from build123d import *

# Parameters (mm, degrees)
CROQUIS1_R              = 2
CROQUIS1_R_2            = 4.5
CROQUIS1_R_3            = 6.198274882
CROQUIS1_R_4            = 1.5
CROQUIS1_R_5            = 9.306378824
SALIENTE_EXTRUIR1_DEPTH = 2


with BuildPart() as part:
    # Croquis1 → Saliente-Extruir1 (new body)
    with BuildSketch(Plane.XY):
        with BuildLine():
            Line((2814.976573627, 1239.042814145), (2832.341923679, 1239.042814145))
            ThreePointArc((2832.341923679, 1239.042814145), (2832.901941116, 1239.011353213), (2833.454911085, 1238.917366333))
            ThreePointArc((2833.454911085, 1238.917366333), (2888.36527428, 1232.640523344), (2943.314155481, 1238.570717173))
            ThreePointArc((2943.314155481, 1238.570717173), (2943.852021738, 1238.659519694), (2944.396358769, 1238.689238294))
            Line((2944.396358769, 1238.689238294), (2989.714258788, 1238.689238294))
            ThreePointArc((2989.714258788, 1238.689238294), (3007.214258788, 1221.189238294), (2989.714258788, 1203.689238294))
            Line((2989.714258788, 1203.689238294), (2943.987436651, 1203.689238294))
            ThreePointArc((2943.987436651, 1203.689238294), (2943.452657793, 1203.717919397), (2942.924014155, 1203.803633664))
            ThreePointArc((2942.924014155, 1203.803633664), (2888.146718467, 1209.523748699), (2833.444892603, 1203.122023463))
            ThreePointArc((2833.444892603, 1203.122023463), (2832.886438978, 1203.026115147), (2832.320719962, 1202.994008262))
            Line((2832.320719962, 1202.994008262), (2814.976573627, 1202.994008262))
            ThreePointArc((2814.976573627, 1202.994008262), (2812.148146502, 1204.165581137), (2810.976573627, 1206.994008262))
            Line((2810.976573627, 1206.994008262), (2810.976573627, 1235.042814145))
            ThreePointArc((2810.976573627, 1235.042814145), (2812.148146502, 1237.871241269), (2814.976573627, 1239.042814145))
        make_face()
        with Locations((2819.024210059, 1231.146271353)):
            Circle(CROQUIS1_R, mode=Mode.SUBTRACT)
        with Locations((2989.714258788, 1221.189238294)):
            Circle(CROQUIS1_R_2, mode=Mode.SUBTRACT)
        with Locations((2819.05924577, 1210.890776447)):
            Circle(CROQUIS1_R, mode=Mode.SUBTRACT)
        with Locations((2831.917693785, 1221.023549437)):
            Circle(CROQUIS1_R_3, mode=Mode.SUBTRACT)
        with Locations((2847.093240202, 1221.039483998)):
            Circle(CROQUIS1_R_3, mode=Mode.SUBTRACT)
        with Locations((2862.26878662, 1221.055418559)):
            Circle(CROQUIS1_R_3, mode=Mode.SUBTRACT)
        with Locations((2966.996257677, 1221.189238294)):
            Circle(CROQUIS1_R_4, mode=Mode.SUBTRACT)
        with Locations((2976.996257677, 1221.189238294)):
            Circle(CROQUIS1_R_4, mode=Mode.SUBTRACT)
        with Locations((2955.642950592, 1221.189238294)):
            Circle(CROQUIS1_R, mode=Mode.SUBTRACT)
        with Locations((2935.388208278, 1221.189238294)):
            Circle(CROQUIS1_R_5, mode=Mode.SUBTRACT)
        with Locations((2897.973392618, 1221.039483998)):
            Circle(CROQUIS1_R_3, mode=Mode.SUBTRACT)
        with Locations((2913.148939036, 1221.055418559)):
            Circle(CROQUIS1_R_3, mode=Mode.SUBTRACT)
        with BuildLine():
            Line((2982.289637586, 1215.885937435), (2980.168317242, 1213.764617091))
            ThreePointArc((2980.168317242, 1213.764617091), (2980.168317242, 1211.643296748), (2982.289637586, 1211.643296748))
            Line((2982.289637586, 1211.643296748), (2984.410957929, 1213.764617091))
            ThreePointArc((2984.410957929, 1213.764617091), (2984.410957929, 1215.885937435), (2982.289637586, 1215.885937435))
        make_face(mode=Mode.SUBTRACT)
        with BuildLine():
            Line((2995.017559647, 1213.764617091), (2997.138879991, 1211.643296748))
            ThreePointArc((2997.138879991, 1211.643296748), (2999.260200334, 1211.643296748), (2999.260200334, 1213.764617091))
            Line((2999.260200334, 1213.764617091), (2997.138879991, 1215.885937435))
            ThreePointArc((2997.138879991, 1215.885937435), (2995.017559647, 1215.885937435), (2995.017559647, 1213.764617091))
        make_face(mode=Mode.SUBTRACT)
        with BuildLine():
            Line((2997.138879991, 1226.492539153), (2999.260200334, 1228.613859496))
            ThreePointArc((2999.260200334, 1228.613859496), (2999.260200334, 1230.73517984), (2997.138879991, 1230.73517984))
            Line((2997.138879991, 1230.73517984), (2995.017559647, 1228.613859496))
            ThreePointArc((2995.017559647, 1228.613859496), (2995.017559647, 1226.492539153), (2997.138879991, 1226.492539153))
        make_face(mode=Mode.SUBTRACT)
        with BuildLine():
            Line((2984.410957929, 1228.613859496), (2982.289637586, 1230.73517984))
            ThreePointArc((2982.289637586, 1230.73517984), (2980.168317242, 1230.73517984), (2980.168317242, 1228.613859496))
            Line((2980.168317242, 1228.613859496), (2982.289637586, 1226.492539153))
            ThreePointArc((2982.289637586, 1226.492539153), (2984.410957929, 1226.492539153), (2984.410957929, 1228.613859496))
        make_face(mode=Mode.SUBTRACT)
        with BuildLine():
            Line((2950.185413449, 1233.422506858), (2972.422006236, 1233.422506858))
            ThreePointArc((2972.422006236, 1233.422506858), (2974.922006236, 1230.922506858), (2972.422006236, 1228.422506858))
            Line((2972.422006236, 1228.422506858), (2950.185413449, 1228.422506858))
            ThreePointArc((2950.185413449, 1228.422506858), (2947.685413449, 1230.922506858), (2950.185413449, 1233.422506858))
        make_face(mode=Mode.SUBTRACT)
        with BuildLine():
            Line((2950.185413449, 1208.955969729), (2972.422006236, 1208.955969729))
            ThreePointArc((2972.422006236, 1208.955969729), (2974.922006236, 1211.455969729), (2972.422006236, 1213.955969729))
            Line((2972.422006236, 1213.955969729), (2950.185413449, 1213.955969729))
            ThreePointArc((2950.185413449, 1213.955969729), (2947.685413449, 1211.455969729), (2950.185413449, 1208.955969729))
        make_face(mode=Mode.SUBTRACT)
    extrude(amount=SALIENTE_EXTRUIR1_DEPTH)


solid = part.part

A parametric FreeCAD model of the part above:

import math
import FreeCAD as App
import Part
import Sketcher

V = App.Vector
Q = App.Units.Quantity

doc = App.newDocument("Part")
body = doc.addObject("PartDesign::Body", "Body")

# Sketch on XY plane
sketch1 = body.newObject("Sketcher::SketchObject", "Sketch")
sketch1.AttachmentSupport = (doc.getObject("XY_Plane"), [""])
sketch1.MapMode = "FlatFace"
sketch1.addGeometry(Part.LineSegment(V(2832.3, 1239, 0), V(2815, 1239, 0)), False)
sketch1.addGeometry(Part.ArcOfCircle(Part.Circle(V(2815, 1235, 0), V(0, 0, 1), 4), math.radians(90), math.radians(180)), False)
sketch1.addGeometry(Part.LineSegment(V(2811, 1235, 0), V(2811, 1207, 0)), False)
sketch1.addGeometry(Part.ArcOfCircle(Part.Circle(V(2815, 1207, 0), V(0, 0, 1), 4), math.radians(180), math.radians(270)), False)
sketch1.addGeometry(Part.LineSegment(V(2815, 1203, 0), V(2832.3, 1203, 0)), False)
sketch1.addGeometry(Part.ArcOfCircle(Part.Circle(V(2832.3, 1208, 0), V(0, 0, 1), 5), math.radians(-90), math.radians(-77.01)), False)
sketch1.addGeometry(Part.ArcOfCircle(Part.Circle(V(2889.7, 959.3, 0), V(0, 0, 1), 250.2), math.radians(78), math.radians(103)), False)
sketch1.addGeometry(Part.ArcOfCircle(Part.Circle(V(2944, 1208.7, 0), V(0, 0, 1), 5), math.radians(-102.28), math.radians(-90)), False)
sketch1.addGeometry(Part.LineSegment(V(2944, 1203.7, 0), V(2989.7, 1203.7, 0)), False)
sketch1.addGeometry(Part.ArcOfCircle(Part.Circle(V(2989.7, 1221.2, 0), V(0, 0, 1), 17.5), math.radians(-90), math.radians(90)), False)
sketch1.addGeometry(Part.LineSegment(V(2989.7, 1238.7, 0), V(2944.4, 1238.7, 0)), False)
sketch1.addGeometry(Part.ArcOfCircle(Part.Circle(V(2944.4, 1233.7, 0), V(0, 0, 1), 5), math.radians(90), math.radians(102.5)), False)
sketch1.addGeometry(Part.ArcOfCircle(Part.Circle(V(2889.2, 1482.9, 0), V(0, 0, 1), 250.2), math.radians(-103), math.radians(-77)), False)
sketch1.addGeometry(Part.ArcOfCircle(Part.Circle(V(2832.3, 1234, 0), V(0, 0, 1), 5), math.radians(77.14), math.radians(90)), False)
sketch1.addGeometry(Part.ArcOfCircle(Part.Circle(V(2950.2, 1211.5, 0), V(0, 0, 1), 2.5), math.radians(90), math.radians(270)), False)
sketch1.addGeometry(Part.LineSegment(V(2950.2, 1214, 0), V(2972.4, 1214, 0)), False)
sketch1.addGeometry(Part.ArcOfCircle(Part.Circle(V(2972.4, 1211.5, 0), V(0, 0, 1), 2.5), math.radians(-90), math.radians(90)), False)
sketch1.addGeometry(Part.LineSegment(V(2972.4, 1209, 0), V(2950.2, 1209, 0)), False)
sketch1.addGeometry(Part.ArcOfCircle(Part.Circle(V(2996.1, 1214.8, 0), V(0, 0, 1), 1.5), math.radians(45), math.radians(225)), False)
sketch1.addGeometry(Part.LineSegment(V(2997.1, 1215.9, 0), V(2999.3, 1213.8, 0)), False)
sketch1.addGeometry(Part.ArcOfCircle(Part.Circle(V(2998.2, 1212.7, 0), V(0, 0, 1), 1.5), math.radians(-135), math.radians(45)), False)
sketch1.addGeometry(Part.LineSegment(V(2997.1, 1211.6, 0), V(2995, 1213.8, 0)), False)
sketch1.addGeometry(Part.ArcOfCircle(Part.Circle(V(2983.4, 1214.8, 0), V(0, 0, 1), 1.5), math.radians(-45), math.radians(135)), False)
sketch1.addGeometry(Part.LineSegment(V(2984.4, 1213.8, 0), V(2982.3, 1211.6, 0)), False)
sketch1.addGeometry(Part.ArcOfCircle(Part.Circle(V(2981.2, 1212.7, 0), V(0, 0, 1), 1.5), math.radians(135), math.radians(315)), False)
sketch1.addGeometry(Part.LineSegment(V(2980.2, 1213.8, 0), V(2982.3, 1215.9, 0)), False)
sketch1.addGeometry(Part.Circle(V(2913.1, 1221.1, 0), V(0, 0, 1), 6.2), False)
sketch1.addGeometry(Part.Circle(V(2819.1, 1210.9, 0), V(0, 0, 1), 2), False)
sketch1.addGeometry(Part.Circle(V(2898, 1221, 0), V(0, 0, 1), 6.2), False)
sketch1.addGeometry(Part.Circle(V(2862.3, 1221.1, 0), V(0, 0, 1), 6.2), False)
sketch1.addGeometry(Part.Circle(V(2847.1, 1221, 0), V(0, 0, 1), 6.2), False)
sketch1.addGeometry(Part.Circle(V(2831.9, 1221, 0), V(0, 0, 1), 6.2), False)
sketch1.addGeometry(Part.Circle(V(2989.7, 1221.2, 0), V(0, 0, 1), 4.5), False)
sketch1.addGeometry(Part.Circle(V(2977, 1221.2, 0), V(0, 0, 1), 1.5), False)
sketch1.addGeometry(Part.Circle(V(2967, 1221.2, 0), V(0, 0, 1), 1.5), False)
sketch1.addGeometry(Part.Circle(V(2955.6, 1221.2, 0), V(0, 0, 1), 2), False)
sketch1.addGeometry(Part.Circle(V(2935.4, 1221.2, 0), V(0, 0, 1), 9.3), False)
sketch1.addGeometry(Part.ArcOfCircle(Part.Circle(V(2996.1, 1227.6, 0), V(0, 0, 1), 1.5), math.radians(135), math.radians(315)), False)
sketch1.addGeometry(Part.LineSegment(V(2995, 1228.6, 0), V(2997.1, 1230.7, 0)), False)
sketch1.addGeometry(Part.ArcOfCircle(Part.Circle(V(2998.2, 1229.7, 0), V(0, 0, 1), 1.5), math.radians(-45), math.radians(135)), False)
sketch1.addGeometry(Part.LineSegment(V(2999.3, 1228.6, 0), V(2997.1, 1226.5, 0)), False)
sketch1.addGeometry(Part.ArcOfCircle(Part.Circle(V(2983.4, 1227.6, 0), V(0, 0, 1), 1.5), math.radians(-135), math.radians(45)), False)
sketch1.addGeometry(Part.LineSegment(V(2982.3, 1226.5, 0), V(2980.2, 1228.6, 0)), False)
sketch1.addGeometry(Part.ArcOfCircle(Part.Circle(V(2981.2, 1229.7, 0), V(0, 0, 1), 1.5), math.radians(45), math.radians(225)), False)
sketch1.addGeometry(Part.LineSegment(V(2982.3, 1230.7, 0), V(2984.4, 1228.6, 0)), False)
sketch1.addGeometry(Part.LineSegment(V(2950.2, 1233.4, 0), V(2972.4, 1233.4, 0)), False)
sketch1.addGeometry(Part.ArcOfCircle(Part.Circle(V(2972.4, 1230.9, 0), V(0, 0, 1), 2.5), math.radians(-90), math.radians(90)), False)
sketch1.addGeometry(Part.LineSegment(V(2972.4, 1228.4, 0), V(2950.2, 1228.4, 0)), False)
sketch1.addGeometry(Part.ArcOfCircle(Part.Circle(V(2950.2, 1230.9, 0), V(0, 0, 1), 2.5), math.radians(90), math.radians(270)), False)
sketch1.addGeometry(Part.Circle(V(2819, 1231.1, 0), V(0, 0, 1), 2), False)
sketch1.addConstraint(Sketcher.Constraint("Tangent", 0, 2, 1, 1))
sketch1.addConstraint(Sketcher.Constraint("Tangent", 1, 2, 2, 1))
sketch1.addConstraint(Sketcher.Constraint("Tangent", 2, 2, 3, 1))
sketch1.addConstraint(Sketcher.Constraint("Tangent", 3, 2, 4, 1))
sketch1.addConstraint(Sketcher.Constraint("Tangent", 4, 2, 5, 1))
sketch1.addConstraint(Sketcher.Constraint("Tangent", 5, 2, 6, 2))
sketch1.addConstraint(Sketcher.Constraint("Tangent", 6, 1, 7, 1))
sketch1.addConstraint(Sketcher.Constraint("Tangent", 7, 2, 8, 1))
sketch1.addConstraint(Sketcher.Constraint("Tangent", 8, 2, 9, 1))
sketch1.addConstraint(Sketcher.Constraint("Tangent", 9, 2, 10, 1))
sketch1.addConstraint(Sketcher.Constraint("Tangent", 10, 2, 11, 1))
sketch1.addConstraint(Sketcher.Constraint("Tangent", 11, 2, 12, 2))
sketch1.addConstraint(Sketcher.Constraint("Tangent", 12, 1, 13, 1))
sketch1.addConstraint(Sketcher.Constraint("Tangent", 13, 2, 0, 1))
sketch1.addConstraint(Sketcher.Constraint("Tangent", 14, 1, 15, 1))
sketch1.addConstraint(Sketcher.Constraint("Tangent", 15, 2, 16, 2))
sketch1.addConstraint(Sketcher.Constraint("Tangent", 16, 1, 17, 1))
sketch1.addConstraint(Sketcher.Constraint("Tangent", 17, 2, 14, 2))
sketch1.addConstraint(Sketcher.Constraint("Tangent", 18, 1, 19, 1))
sketch1.addConstraint(Sketcher.Constraint("Tangent", 19, 2, 20, 2))
sketch1.addConstraint(Sketcher.Constraint("Tangent", 20, 1, 21, 1))
sketch1.addConstraint(Sketcher.Constraint("Tangent", 21, 2, 18, 2))
sketch1.addConstraint(Sketcher.Constraint("Tangent", 22, 1, 23, 1))
sketch1.addConstraint(Sketcher.Constraint("Tangent", 23, 2, 24, 2))
sketch1.addConstraint(Sketcher.Constraint("Tangent", 24, 1, 25, 1))
sketch1.addConstraint(Sketcher.Constraint("Tangent", 25, 2, 22, 2))
sketch1.addConstraint(Sketcher.Constraint("Tangent", 37, 1, 38, 1))
sketch1.addConstraint(Sketcher.Constraint("Tangent", 38, 2, 39, 2))
sketch1.addConstraint(Sketcher.Constraint("Tangent", 39, 1, 40, 1))
sketch1.addConstraint(Sketcher.Constraint("Tangent", 40, 2, 37, 2))
sketch1.addConstraint(Sketcher.Constraint("Tangent", 41, 1, 42, 1))
sketch1.addConstraint(Sketcher.Constraint("Tangent", 42, 2, 43, 2))
sketch1.addConstraint(Sketcher.Constraint("Tangent", 43, 1, 44, 1))
sketch1.addConstraint(Sketcher.Constraint("Tangent", 44, 2, 41, 2))
sketch1.addConstraint(Sketcher.Constraint("Tangent", 45, 2, 46, 2))
sketch1.addConstraint(Sketcher.Constraint("Tangent", 46, 1, 47, 1))
sketch1.addConstraint(Sketcher.Constraint("Tangent", 47, 2, 48, 2))
sketch1.addConstraint(Sketcher.Constraint("Tangent", 48, 1, 45, 1))
sketch1.addConstraint(Sketcher.Constraint("Horizontal", 0))
sketch1.addConstraint(Sketcher.Constraint("Vertical", 2))
sketch1.addConstraint(Sketcher.Constraint("Horizontal", 4))
sketch1.addConstraint(Sketcher.Constraint("Horizontal", 8))
sketch1.addConstraint(Sketcher.Constraint("Horizontal", 10))
sketch1.addConstraint(Sketcher.Constraint("Horizontal", 15))
sketch1.addConstraint(Sketcher.Constraint("Horizontal", 17))
sketch1.addConstraint(Sketcher.Constraint("Horizontal", 45))
sketch1.addConstraint(Sketcher.Constraint("Horizontal", 47))
sketch1.addConstraint(Sketcher.Constraint("Coincident", 32, 3, 9, 3))
sketch1.addConstraint(Sketcher.Constraint("Equal", 1, 3))
sketch1.addConstraint(Sketcher.Constraint("Equal", 5, 7))
sketch1.addConstraint(Sketcher.Constraint("Equal", 7, 11))
sketch1.addConstraint(Sketcher.Constraint("Equal", 6, 12))
sketch1.addConstraint(Sketcher.Constraint("Equal", 11, 13))
sketch1.addConstraint(Sketcher.Constraint("Equal", 18, 20))
sketch1.addConstraint(Sketcher.Constraint("Equal", 20, 22))
sketch1.addConstraint(Sketcher.Constraint("Equal", 22, 24))
sketch1.addConstraint(Sketcher.Constraint("Equal", 26, 28))
sketch1.addConstraint(Sketcher.Constraint("Equal", 28, 29))
sketch1.addConstraint(Sketcher.Constraint("Equal", 29, 30))
sketch1.addConstraint(Sketcher.Constraint("Equal", 30, 31))
sketch1.addConstraint(Sketcher.Constraint("Equal", 24, 33))
sketch1.addConstraint(Sketcher.Constraint("Equal", 33, 34))
sketch1.addConstraint(Sketcher.Constraint("Equal", 27, 35))
sketch1.addConstraint(Sketcher.Constraint("Equal", 34, 37))
sketch1.addConstraint(Sketcher.Constraint("Equal", 37, 39))
sketch1.addConstraint(Sketcher.Constraint("Equal", 39, 41))
sketch1.addConstraint(Sketcher.Constraint("Equal", 41, 43))
sketch1.addConstraint(Sketcher.Constraint("Equal", 16, 46))
sketch1.addConstraint(Sketcher.Constraint("Equal", 35, 49))
sketch1.addConstraint(Sketcher.Constraint("Perpendicular", 21, 23))
sketch1.addConstraint(Sketcher.Constraint("Parallel", 25, 38))
sketch1.addConstraint(Sketcher.Constraint("Perpendicular", 40, 42))
sketch1.addConstraint(Sketcher.Constraint("Horizontal", 18, 3, 22, 3))
sketch1.addConstraint(Sketcher.Constraint("Horizontal", 20, 3, 24, 3))
sketch1.addConstraint(Sketcher.Constraint("Horizontal", 26, 3, 29, 3))
sketch1.addConstraint(Sketcher.Constraint("Horizontal", 28, 3, 30, 3))
sketch1.addConstraint(Sketcher.Constraint("Horizontal", 32, 3, 33, 3))
sketch1.addConstraint(Sketcher.Constraint("Horizontal", 33, 3, 34, 3))
sketch1.addConstraint(Sketcher.Constraint("Horizontal", 34, 3, 35, 3))
sketch1.addConstraint(Sketcher.Constraint("Horizontal", 35, 3, 36, 3))
sketch1.addConstraint(Sketcher.Constraint("Horizontal", 37, 3, 41, 3))
sketch1.addConstraint(Sketcher.Constraint("Horizontal", 39, 3, 43, 3))
sketch1.addConstraint(Sketcher.Constraint("Horizontal", 19, 2, 21, 2))
sketch1.addConstraint(Sketcher.Constraint("Horizontal", 21, 2, 22, 1))
sketch1.addConstraint(Sketcher.Constraint("Horizontal", 37, 1, 39, 1))
sketch1.addConstraint(Sketcher.Constraint("Vertical", 18, 3, 37, 3))
sketch1.addConstraint(Sketcher.Constraint("Vertical", 22, 3, 41, 3))
sketch1.addConstraint(Sketcher.Constraint("Vertical", 16, 3, 46, 3))
sketch1.addConstraint(Sketcher.Constraint("Vertical", 14, 3, 48, 3))
sketch1.addConstraint(Sketcher.Constraint("Diameter", 27, Q("4 mm")))
sketch1.addConstraint(Sketcher.Constraint("Diameter", 32, Q("9 mm")))
sketch1.addConstraint(Sketcher.Constraint("Diameter", 33, Q("3 mm")))
sketch1.addConstraint(Sketcher.Constraint("Radius", 1, Q("4 mm")))
sketch1.addConstraint(Sketcher.Constraint("Radius", 5, Q("5 mm")))
sketch1.addConstraint(Sketcher.Constraint("Radius", 9, Q("17.5 mm")))
sketch1.addConstraint(Sketcher.Constraint("Radius", 14, Q("2.5 mm")))
sketch1.addConstraint(Sketcher.Constraint("Diameter", 26, Q("12.39655 mm")))
sketch1.addConstraint(Sketcher.Constraint("Radius", 6, Q("250.227109 mm")))
sketch1.addConstraint(Sketcher.Constraint("Diameter", 36, Q("18.612758 mm")))
sketch1.addConstraint(Sketcher.Constraint("DistanceX", 10, 2, 10, 1, Q("45.3179 mm")))
sketch1.addConstraint(Sketcher.Constraint("DistanceX", 0, 2, 0, 1, Q("17.36535 mm")))
sketch1.addConstraint(Sketcher.Constraint("DistanceY", -1, 1, 37, 3, Q("1227.553199 mm")))
sketch1.addConstraint(Sketcher.Constraint("DistanceX", -1, 1, 19, 2, Q("2999.2602 mm")))
sketch1.addConstraint(Sketcher.Constraint("DistanceX", 4, 1, 4, 2, Q("17.344146 mm")))
sketch1.addConstraint(Sketcher.Constraint("DistanceX", 8, 1, 8, 2, Q("45.726822 mm")))
sketch1.addConstraint(Sketcher.Constraint("DistanceX", 15, 1, 15, 2, Q("22.236593 mm")))
sketch1.addConstraint(Sketcher.Constraint("DistanceY", 2, 2, 2, 1, Q("28.048806 mm")))
sketch1.addConstraint(Sketcher.Constraint("DistanceY", -1, 1, 3, 3, Q("1206.994008 mm")))
sketch1.addConstraint(Sketcher.Constraint("DistanceX", -1, 1, 5, 3, Q("2832.32072 mm")))
sketch1.addConstraint(Sketcher.Constraint("DistanceY", -1, 1, 6, 3, Q("959.301489 mm")))
sketch1.addConstraint(Sketcher.Constraint("DistanceY", -1, 1, 7, 3, Q("1208.689238 mm")))
sketch1.addConstraint(Sketcher.Constraint("DistanceY", -1, 1, 14, 3, Q("1211.45597 mm")))
sketch1.addConstraint(Sketcher.Constraint("DistanceX", -1, 1, 26, 3, Q("2913.148939 mm")))
sketch1.addConstraint(Sketcher.Constraint("DistanceY", -1, 1, 26, 3, Q("1221.055419 mm")))
sketch1.addConstraint(Sketcher.Constraint("DistanceX", -1, 1, 30, 3, Q("2847.09324 mm")))
sketch1.addConstraint(Sketcher.Constraint("DistanceY", -1, 1, 31, 3, Q("1221.023549 mm")))
sketch1.addConstraint(Sketcher.Constraint("DistanceX", -1, 1, 35, 3, Q("2955.642951 mm")))
sketch1.addConstraint(Sketcher.Constraint("DistanceX", -1, 1, 36, 3, Q("2935.388208 mm")))
sketch1.addConstraint(Sketcher.Constraint("DistanceX", -1, 1, 49, 3, Q("2819.02421 mm")))
sketch1.addConstraint(Sketcher.Constraint("DistanceY", -1, 1, 49, 3, Q("1231.146271 mm")))
sketch1.addConstraint(Sketcher.Constraint("DistanceX", -1, 1, 14, 3, Q("2950.185413 mm")))
sketch1.addConstraint(Sketcher.Constraint("DistanceY", -1, 1, 18, 3, Q("1214.825277 mm")))
sketch1.addConstraint(Sketcher.Constraint("DistanceX", -1, 1, 22, 3, Q("2983.350298 mm")))
sketch1.addConstraint(Sketcher.Constraint("DistanceX", -1, 1, 27, 3, Q("2819.059246 mm")))
sketch1.addConstraint(Sketcher.Constraint("DistanceY", -1, 1, 27, 3, Q("1210.890776 mm")))
sketch1.addConstraint(Sketcher.Constraint("DistanceX", -1, 1, 28, 3, Q("2897.973393 mm")))
sketch1.addConstraint(Sketcher.Constraint("DistanceY", -1, 1, 28, 3, Q("1221.039484 mm")))
sketch1.addConstraint(Sketcher.Constraint("DistanceX", -1, 1, 29, 3, Q("2862.268787 mm")))
sketch1.addConstraint(Sketcher.Constraint("DistanceX", -1, 1, 31, 3, Q("2831.917694 mm")))
sketch1.addConstraint(Sketcher.Constraint("DistanceX", -1, 1, 33, 3, Q("2976.996258 mm")))
sketch1.addConstraint(Sketcher.Constraint("DistanceX", -1, 1, 34, 3, Q("2966.996258 mm")))
sketch1.addConstraint(Sketcher.Constraint("DistanceY", -1, 1, 46, 3, Q("1230.922507 mm")))
pad1 = body.newObject("PartDesign::Pad", "Pad")
pad1.Profile = sketch1
pad1.Length = 2

doc.recompute()
